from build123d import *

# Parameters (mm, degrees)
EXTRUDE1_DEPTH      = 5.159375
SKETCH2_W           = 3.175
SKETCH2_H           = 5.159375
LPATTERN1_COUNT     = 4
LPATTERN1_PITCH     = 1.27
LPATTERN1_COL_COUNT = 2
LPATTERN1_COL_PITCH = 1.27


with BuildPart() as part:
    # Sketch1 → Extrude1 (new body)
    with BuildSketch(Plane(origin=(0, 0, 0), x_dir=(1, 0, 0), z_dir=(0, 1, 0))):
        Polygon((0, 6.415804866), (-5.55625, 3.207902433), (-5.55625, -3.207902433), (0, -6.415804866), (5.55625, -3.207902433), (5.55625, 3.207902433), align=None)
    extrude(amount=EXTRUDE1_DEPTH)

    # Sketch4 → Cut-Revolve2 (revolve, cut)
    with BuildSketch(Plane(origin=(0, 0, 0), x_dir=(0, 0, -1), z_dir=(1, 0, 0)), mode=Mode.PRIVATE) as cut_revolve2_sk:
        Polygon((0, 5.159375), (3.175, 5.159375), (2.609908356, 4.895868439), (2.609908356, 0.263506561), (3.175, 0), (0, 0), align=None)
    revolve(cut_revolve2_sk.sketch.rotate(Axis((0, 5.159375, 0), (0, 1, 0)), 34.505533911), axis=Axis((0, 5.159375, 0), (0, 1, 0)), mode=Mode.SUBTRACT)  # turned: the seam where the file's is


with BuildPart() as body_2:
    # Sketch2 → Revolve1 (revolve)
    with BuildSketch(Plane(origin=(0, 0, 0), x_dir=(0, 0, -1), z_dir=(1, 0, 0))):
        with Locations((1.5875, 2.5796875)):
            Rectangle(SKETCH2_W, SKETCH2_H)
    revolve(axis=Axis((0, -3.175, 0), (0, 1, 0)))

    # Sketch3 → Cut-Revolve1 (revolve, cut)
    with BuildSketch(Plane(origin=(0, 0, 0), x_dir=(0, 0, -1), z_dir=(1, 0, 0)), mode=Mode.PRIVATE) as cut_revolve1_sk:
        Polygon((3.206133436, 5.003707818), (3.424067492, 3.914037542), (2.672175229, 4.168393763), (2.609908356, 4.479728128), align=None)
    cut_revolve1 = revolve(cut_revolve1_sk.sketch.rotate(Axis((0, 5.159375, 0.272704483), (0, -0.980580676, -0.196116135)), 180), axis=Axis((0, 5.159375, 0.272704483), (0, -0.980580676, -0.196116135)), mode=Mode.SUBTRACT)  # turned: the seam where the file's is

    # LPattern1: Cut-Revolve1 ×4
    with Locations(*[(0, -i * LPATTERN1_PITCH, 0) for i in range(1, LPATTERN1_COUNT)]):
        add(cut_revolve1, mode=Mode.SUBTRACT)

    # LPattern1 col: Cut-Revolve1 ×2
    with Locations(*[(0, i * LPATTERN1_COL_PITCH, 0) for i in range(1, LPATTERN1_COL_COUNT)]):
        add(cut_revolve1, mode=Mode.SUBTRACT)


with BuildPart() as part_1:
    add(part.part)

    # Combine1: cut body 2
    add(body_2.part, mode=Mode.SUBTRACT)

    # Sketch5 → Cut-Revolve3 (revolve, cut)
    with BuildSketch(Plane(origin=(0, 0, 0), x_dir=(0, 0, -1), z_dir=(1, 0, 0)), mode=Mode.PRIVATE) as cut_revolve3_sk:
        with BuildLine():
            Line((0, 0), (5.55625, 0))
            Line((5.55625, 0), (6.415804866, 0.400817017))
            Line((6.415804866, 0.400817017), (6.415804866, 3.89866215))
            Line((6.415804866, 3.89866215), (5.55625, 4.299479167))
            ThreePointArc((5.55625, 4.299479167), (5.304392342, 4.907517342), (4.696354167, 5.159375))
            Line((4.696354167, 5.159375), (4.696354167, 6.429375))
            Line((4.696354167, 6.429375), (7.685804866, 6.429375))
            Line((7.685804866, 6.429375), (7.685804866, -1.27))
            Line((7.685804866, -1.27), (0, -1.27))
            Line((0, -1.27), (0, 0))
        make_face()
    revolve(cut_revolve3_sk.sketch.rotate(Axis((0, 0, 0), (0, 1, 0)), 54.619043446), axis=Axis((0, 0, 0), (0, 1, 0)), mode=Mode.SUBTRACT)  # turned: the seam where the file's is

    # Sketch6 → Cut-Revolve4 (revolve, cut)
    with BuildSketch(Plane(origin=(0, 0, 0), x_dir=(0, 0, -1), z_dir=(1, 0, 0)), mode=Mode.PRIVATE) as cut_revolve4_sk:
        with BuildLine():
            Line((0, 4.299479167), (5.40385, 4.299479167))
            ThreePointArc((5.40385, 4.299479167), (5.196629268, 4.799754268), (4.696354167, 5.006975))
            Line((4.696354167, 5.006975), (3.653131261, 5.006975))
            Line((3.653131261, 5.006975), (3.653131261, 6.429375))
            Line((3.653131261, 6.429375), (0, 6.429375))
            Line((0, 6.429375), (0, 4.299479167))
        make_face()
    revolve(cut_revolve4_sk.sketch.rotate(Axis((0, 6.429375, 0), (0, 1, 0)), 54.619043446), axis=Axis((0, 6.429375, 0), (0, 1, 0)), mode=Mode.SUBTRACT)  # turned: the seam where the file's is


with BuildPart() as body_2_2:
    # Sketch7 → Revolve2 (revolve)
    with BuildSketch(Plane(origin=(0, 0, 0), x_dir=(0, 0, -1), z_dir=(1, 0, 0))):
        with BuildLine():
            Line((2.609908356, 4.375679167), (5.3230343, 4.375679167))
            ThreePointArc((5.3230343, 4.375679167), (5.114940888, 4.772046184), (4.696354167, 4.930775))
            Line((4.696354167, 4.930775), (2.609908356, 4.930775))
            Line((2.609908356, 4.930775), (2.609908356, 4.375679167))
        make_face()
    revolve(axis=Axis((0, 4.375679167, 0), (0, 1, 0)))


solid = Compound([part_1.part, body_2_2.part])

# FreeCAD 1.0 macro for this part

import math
import FreeCAD as App
import Part
import Sketcher
Q = App.Units.Quantity


def add_polygon(sketch, points):
    """Adds a closed chain of lines whose ends are joined by coincident constraints."""
    first, n = sketch.GeometryCount, len(points)
    for a, b in zip(points, points[1:] + points[:1]):
        sketch.addGeometry(Part.LineSegment(App.Vector(*a, 0), App.Vector(*b, 0)), False)
    for i in range(n):
        sketch.addConstraint(Sketcher.Constraint("Coincident", first + i, 2, first + (i + 1) % n, 1))

doc = App.newDocument("Part")
params = doc.addObject("Spreadsheet::Sheet", "Params")
for row, (alias, value) in enumerate([
    ("pad1_length", "0.203125 in"),
    ("sketch2_width", "0.203125 in"),
    ("sketch2_height", "0.125 in"),
    ("groove_angle", "360 deg"),
    ("sketch3_width", "0.203125 in"),
    ("sketch3_height", "0.125 in"),
    ("revolution_angle", "360 deg"),
    ("sketch4_length", "0.03125 in"),
    ("groove2_angle", "360 deg"),
    ("linearpattern_pitch", "0.05 in"),
    ("linearpattern2_pitch", "0.05 in"),
    ("sketch5_width", "0.05 in"),
    ("sketch5_height", "0.21875 in"),
    ("groove3_angle", "360 deg"),
    ("sketch6_width", "0.056 in"),
    ("groove4_angle", "360 deg"),
    ("revolution2_angle", "360 deg"),
], start=1):
    params.set(f"A{row}", alias)
    params.set(f"B{row}", "=" + value)
    params.setAlias(f"B{row}", alias)

body = doc.addObject("PartDesign::Body", "Body")

sketch1 = doc.addObject("Sketcher::SketchObject", "Sketch")
body.addObject(sketch1)
sketch1.AttachmentSupport = (doc.XZ_Plane, [""])
sketch1.MapMode = "FlatFace"
add_polygon(sketch1, [(0, -6), (-6, -3), (-6, 3), (0, 6), (6, 3), (6, -3)])
sketch1.addConstraint(Sketcher.Constraint("Vertical", 1))
sketch1.addConstraint(Sketcher.Constraint("Vertical", 4))
sketch1.addConstraint(Sketcher.Constraint("Symmetric", 0, 2, 3, 2, -1, 1))
sketch1.addConstraint(Sketcher.Constraint("Symmetric", 2, 2, 5, 2, -1, 1))
sketch1.addConstraint(Sketcher.Constraint("PointOnObject", 2, 2, -2))
sketch1.addConstraint(Sketcher.Constraint("Parallel", 2, 5))
sketch1.addConstraint(Sketcher.Constraint("Horizontal", 1, 2, 3, 2))
sketch1.addConstraint(Sketcher.Constraint("Angle", 0, Q("150 deg")))
sketch1.addConstraint(Sketcher.Constraint("DistanceX", 0, 2, -1, 1, Q("0.21875 in")))
sketch1.addConstraint(Sketcher.Constraint("DistanceY", 1, 1, 1, 2, Q("6.415805 mm")))
pad1 = doc.addObject("PartDesign::Pad", "Pad")
body.addObject(pad1)
pad1.Profile = sketch1
pad1.setExpression("Length", "Params.pad1_length")
pad1.Reversed = True

sketch2 = doc.addObject("Sketcher::SketchObject", "Sketch001")
body.addObject(sketch2)
sketch2.AttachmentSupport = (doc.YZ_Plane, [""])
sketch2.MapMode = "FlatFace"
add_polygon(sketch2, [(5.2, -3.2), (5.2, 0), (0, 0), (0, -3.2), (0.3, -2.6), (4.9, -2.6)])
sketch2.addConstraint(Sketcher.Constraint("Vertical", 0))
sketch2.addConstraint(Sketcher.Constraint("Horizontal", 1))
sketch2.addConstraint(Sketcher.Constraint("Vertical", 2))
sketch2.addConstraint(Sketcher.Constraint("Horizontal", 4))
sketch2.addConstraint(Sketcher.Constraint("Coincident", 1, 2, -1, 1))
sketch2.addConstraint(Sketcher.Constraint("Horizontal", 2, 2, 5, 2))
sketch2.addConstraint(Sketcher.Constraint("Equal", 3, 5))
sketch2.addConstraint(Sketcher.Constraint("Angle", 3, Q("65 deg")))
sketch2.addConstraint(Sketcher.Constraint("DistanceX", 1, 2, 1, 1, Q("0.203125 in")))
sketch2.addConstraint(Sketcher.Constraint("DistanceY", 0, 1, 0, 2, Q("0.125 in")))
sketch2.addConstraint(Sketcher.Constraint("DistanceX", 4, 1, 4, 2, Q("4.632362 mm")))
sketch2.setExpression("Constraints[14]", "Params.sketch2_width")
sketch2.setExpression("Constraints[15]", "Params.sketch2_height")
groove = doc.addObject("PartDesign::Groove", "Groove")
body.addObject(groove)
groove.Profile = sketch2
groove.ReferenceAxis = (sketch2, ["H_Axis"])
groove.setExpression("Angle", "Params.groove_angle")
body2 = doc.addObject("PartDesign::Body", "Body001")

sketch3 = doc.addObject("Sketcher::SketchObject", "Sketch002")
body2.addObject(sketch3)
sketch3.AttachmentSupport = (doc.getObject("YZ_Plane001"), [""])
sketch3.MapMode = "FlatFace"
add_polygon(sketch3, [(5.2, 0), (0, 0), (0, -3.2), (5.2, -3.2)])
sketch3.addConstraint(Sketcher.Constraint("Horizontal", 0))
sketch3.addConstraint(Sketcher.Constraint("Vertical", 1))
sketch3.addConstraint(Sketcher.Constraint("Horizontal", 2))
sketch3.addConstraint(Sketcher.Constraint("Vertical", 3))
sketch3.addConstraint(Sketcher.Constraint("Coincident", 0, 2, -1, 1))
sketch3.addConstraint(Sketcher.Constraint("DistanceX", 0, 2, 0, 1, Q("0.203125 in")))
sketch3.addConstraint(Sketcher.Constraint("DistanceY", 1, 2, 1, 1, Q("0.125 in")))
sketch3.setExpression("Constraints[9]", "Params.sketch3_width")
sketch3.setExpression("Constraints[10]", "Params.sketch3_height")
revolution = doc.addObject("PartDesign::Revolution", "Revolution")
body2.addObject(revolution)
revolution.Profile = sketch3
revolution.ReferenceAxis = (sketch3, ["H_Axis"])
revolution.setExpression("Angle", "Params.revolution_angle")

sketch4 = doc.addObject("Sketcher::SketchObject", "Sketch003")
body2.addObject(sketch4)
sketch4.AttachmentSupport = (doc.getObject("YZ_Plane001"), [""])
sketch4.MapMode = "FlatFace"
add_polygon(sketch4, [(3.91, -3.42), (5, -3.21), (4.48, -2.61), (4.17, -2.67)])
sketch4.addGeometry(Part.LineSegment(App.Vector(4.34, 0.11, 0), App.Vector(3.25, -0.11, 0)), True)
sketch4.addConstraint(Sketcher.Constraint("Parallel", 0, 2))
sketch4.addConstraint(Sketcher.Constraint("Parallel", 2, 4))
sketch4.addConstraint(Sketcher.Constraint("Equal", 1, 3))
sketch4.addConstraint(Sketcher.Constraint("Equal", 0, 4))
sketch4.addConstraint(Sketcher.Constraint("Distance", 1, Q("0.03125 in")))
sketch4.addConstraint(Sketcher.Constraint("Distance", 2, Q("0.0125 in")))
sketch4.addConstraint(Sketcher.Constraint("DistanceY", 0, 2, 4, 1, Q("3.3151 mm")))
sketch4.addConstraint(Sketcher.Constraint("Distance", 0, Q("1.11125 mm")))
sketch4.addConstraint(Sketcher.Constraint("DistanceX", -1, 1, 1, 2, Q("4.479728 mm")))
sketch4.addConstraint(Sketcher.Constraint("DistanceY", 1, 2, -1, 1, Q("2.609908 mm")))
sketch4.addConstraint(Sketcher.Constraint("DistanceX", 1, 2, 0, 2, Q("0.52398 mm")))
sketch4.addConstraint(Sketcher.Constraint("DistanceX", 4, 1, 1, 2, Q("0.13904 mm")))
sketch4.setExpression("Constraints[8]", "Params.sketch4_length")
groove2 = doc.addObject("PartDesign::Groove", "Groove001")
body2.addObject(groove2)
groove2.Profile = sketch4
groove2.ReferenceAxis = (sketch4, ["Axis0"])
groove2.setExpression("Angle", "Params.groove2_angle")
doc.recompute()

linearpattern = doc.addObject("PartDesign::LinearPattern", "LinearPattern")
body2.addObject(linearpattern)
linearpattern.Originals = [groove2]
linearpattern.Direction = (doc.getObject("Y_Axis001"), [""])
linearpattern.Mode = "offset"
linearpattern.setExpression("Offset", "Params.linearpattern_pitch")
linearpattern.Occurrences = 4
linearpattern.Reversed = True
body2.Tip = linearpattern
doc.recompute()

linearpattern2 = doc.addObject("PartDesign::LinearPattern", "LinearPattern001")
body2.addObject(linearpattern2)
linearpattern2.Originals = [groove2]
linearpattern2.Direction = (doc.getObject("Y_Axis001"), [""])
linearpattern2.Mode = "offset"
linearpattern2.setExpression("Offset", "Params.linearpattern2_pitch")
linearpattern2.Occurrences = 2
body2.Tip = linearpattern2
doc.recompute()

boolean = doc.addObject("PartDesign::Boolean", "Boolean")
body.addObject(boolean)
boolean.Type = "Cut"
boolean.addObjects([body2])

sketch5 = doc.addObject("Sketcher::SketchObject", "Sketch004")
body.addObject(sketch5)
sketch5.AttachmentSupport = (doc.YZ_Plane, [""])
sketch5.MapMode = "FlatFace"
sketch5.addGeometry(Part.LineSegment(App.Vector(0, -5.6, 0), App.Vector(0, 0, 0)), False)
sketch5.addGeometry(Part.LineSegment(App.Vector(0, 0, 0), App.Vector(-1.3, 0, 0)), False)
sketch5.addGeometry(Part.LineSegment(App.Vector(-1.3, 0, 0), App.Vector(-1.3, -7.7, 0)), False)
sketch5.addGeometry(Part.LineSegment(App.Vector(-1.3, -7.7, 0), App.Vector(6.4, -7.7, 0)), False)
sketch5.addGeometry(Part.LineSegment(App.Vector(6.4, -7.7, 0), App.Vector(6.4, -4.7, 0)), False)
sketch5.addGeometry(Part.LineSegment(App.Vector(6.4, -4.7, 0), App.Vector(5.2, -4.7, 0)), False)
sketch5.addGeometry(Part.ArcOfCircle(Part.Circle(App.Vector(4.3, -4.7, 0), App.Vector(0, 0, 1), 0.9), math.radians(-90), math.radians(0)), False)
sketch5.addGeometry(Part.LineSegment(App.Vector(4.3, -5.6, 0), App.Vector(3.9, -6.4, 0)), False)
sketch5.addGeometry(Part.LineSegment(App.Vector(3.9, -6.4, 0), App.Vector(0.4, -6.4, 0)), False)
sketch5.addGeometry(Part.LineSegment(App.Vector(0.4, -6.4, 0), App.Vector(0, -5.6, 0)), False)
sketch5.addConstraint(Sketcher.Constraint("Coincident", 0, 2, 1, 1))
sketch5.addConstraint(Sketcher.Constraint("Coincident", 1, 2, 2, 1))
sketch5.addConstraint(Sketcher.Constraint("Coincident", 2, 2, 3, 1))
sketch5.addConstraint(Sketcher.Constraint("Coincident", 3, 2, 4, 1))
sketch5.addConstraint(Sketcher.Constraint("Coincident", 4, 2, 5, 1))
sketch5.addConstraint(Sketcher.Constraint("Coincident", 5, 2, 6, 2))
sketch5.addConstraint(Sketcher.Constraint("Coincident", 6, 1, 7, 1))
sketch5.addConstraint(Sketcher.Constraint("Coincident", 7, 2, 8, 1))
sketch5.addConstraint(Sketcher.Constraint("Coincident", 8, 2, 9, 1))
sketch5.addConstraint(Sketcher.Constraint("Coincident", 9, 2, 0, 1))
sketch5.addConstraint(Sketcher.Constraint("Vertical", 0))
sketch5.addConstraint(Sketcher.Constraint("Horizontal", 1))
sketch5.addConstraint(Sketcher.Constraint("Vertical", 2))
sketch5.addConstraint(Sketcher.Constraint("Horizontal", 3))
sketch5.addConstraint(Sketcher.Constraint("Vertical", 4))
sketch5.addConstraint(Sketcher.Constraint("Horizontal", 5))
sketch5.addConstraint(Sketcher.Constraint("Horizontal", 8))
sketch5.addConstraint(Sketcher.Constraint("Coincident", 0, 2, -1, 1))
sketch5.addConstraint(Sketcher.Constraint("Horizontal", 6, 3, 4, 2))
sketch5.addConstraint(Sketcher.Constraint("Horizontal", 6, 1, 9, 2))
sketch5.addConstraint(Sketcher.Constraint("Equal", 1, 5))
sketch5.addConstraint(Sketcher.Constraint("Equal", 7, 9))
sketch5.addConstraint(Sketcher.Constraint("Angle", 7, Q("-115 deg")))
sketch5.addConstraint(Sketcher.Constraint("DistanceX", 1, 2, 1, 1, Q("0.05 in")))
sketch5.addConstraint(Sketcher.Constraint("DistanceY", 0, 1, 0, 2, Q("0.21875 in")))
sketch5.addConstraint(Sketcher.Constraint("DistanceY", 3, 2, 7, 2, Q("0.05 in")))
sketch5.addConstraint(Sketcher.Constraint("DistanceX", -1, 1, 5, 2, Q("0.203125 in")))
sketch5.addConstraint(Sketcher.Constraint("Radius", 6, Q("0.859896 mm")))
sketch5.addConstraint(Sketcher.Constraint("DistanceY", 4, 1, 4, 2, Q("2.989451 mm")))
sketch5.addConstraint(Sketcher.Constraint("DistanceX", 8, 2, 8, 1, Q("3.497845 mm")))
sketch5.setExpression("Constraints[23]", "Params.sketch5_width")
sketch5.setExpression("Constraints[24]", "Params.sketch5_height")
groove3 = doc.addObject("PartDesign::Groove", "Groove002")
body.addObject(groove3)
groove3.Profile = sketch5
groove3.ReferenceAxis = (sketch5, ["H_Axis"])
groove3.setExpression("Angle", "Params.groove3_angle")

sketch6 = doc.addObject("Sketcher::SketchObject", "Sketch005")
body.addObject(sketch6)
sketch6.AttachmentSupport = (doc.YZ_Plane, [""])
sketch6.MapMode = "FlatFace"
sketch6.addGeometry(Part.LineSegment(App.Vector(4.3, 0, 0), App.Vector(4.3, -5.4, 0)), False)
sketch6.addGeometry(Part.ArcOfCircle(Part.Circle(App.Vector(4.3, -4.7, 0), App.Vector(0, 0, 1), 0.7), math.radians(-90), math.radians(0)), False)
sketch6.addGeometry(Part.LineSegment(App.Vector(5, -4.7, 0), App.Vector(5, -3.7, 0)), False)
sketch6.addGeometry(Part.LineSegment(App.Vector(5, -3.7, 0), App.Vector(6.4, -3.7, 0)), False)
sketch6.addGeometry(Part.LineSegment(App.Vector(6.4, -3.7, 0), App.Vector(6.4, 0, 0)), False)
sketch6.addGeometry(Part.LineSegment(App.Vector(6.4, 0, 0), App.Vector(4.3, 0, 0)), False)
sketch6.addConstraint(Sketcher.Constraint("Coincident", 0, 2, 1, 1))
sketch6.addConstraint(Sketcher.Constraint("Tangent", 1, 2, 2, 1))
sketch6.addConstraint(Sketcher.Constraint("Coincident", 2, 2, 3, 1))
sketch6.addConstraint(Sketcher.Constraint("Coincident", 3, 2, 4, 1))
sketch6.addConstraint(Sketcher.Constraint("Coincident", 4, 2, 5, 1))
sketch6.addConstraint(Sketcher.Constraint("Coincident", 5, 2, 0, 1))
sketch6.addConstraint(Sketcher.Constraint("Vertical", 0))
sketch6.addConstraint(Sketcher.Constraint("Vertical", 2))
sketch6.addConstraint(Sketcher.Constraint("Horizontal", 3))
sketch6.addConstraint(Sketcher.Constraint("Vertical", 4))
sketch6.addConstraint(Sketcher.Constraint("Horizontal", 5))
sketch6.addConstraint(Sketcher.Constraint("PointOnObject", 4, 2, -1))
sketch6.addConstraint(Sketcher.Constraint("Vertical", 1, 3, 0, 2))
sketch6.addConstraint(Sketcher.Constraint("DistanceX", 3, 1, 3, 2, Q("0.056 in")))
sketch6.addConstraint(Sketcher.Constraint("Radius", 1, Q("0.707496 mm")))
sketch6.addConstraint(Sketcher.Constraint("DistanceY", 0, 2, 0, 1, Q("5.40385 mm")))
sketch6.addConstraint(Sketcher.Constraint("DistanceY", 4, 1, 4, 2, Q("3.653131 mm")))
sketch6.addConstraint(Sketcher.Constraint("DistanceX", -1, 1, 1, 3, Q("4.299479 mm")))
sketch6.setExpression("Constraints[13]", "Params.sketch6_width")
groove4 = doc.addObject("PartDesign::Groove", "Groove003")
body.addObject(groove4)
groove4.Profile = sketch6
groove4.ReferenceAxis = (sketch6, ["H_Axis"])
groove4.setExpression("Angle", "Params.groove4_angle")
body3 = doc.addObject("PartDesign::Body", "Body002")

sketch7 = doc.addObject("Sketcher::SketchObject", "Sketch006")
body3.addObject(sketch7)
sketch7.AttachmentSupport = (doc.getObject("YZ_Plane002"), [""])
sketch7.MapMode = "FlatFace"
sketch7.addGeometry(Part.LineSegment(App.Vector(4.4, -2.6, 0), App.Vector(4.4, -5.3, 0)), False)
sketch7.addGeometry(Part.ArcOfCircle(Part.Circle(App.Vector(4.3, -4.7, 0), App.Vector(0, 0, 1), 0.6), math.radians(-83), math.radians(0)), False)
sketch7.addGeometry(Part.LineSegment(App.Vector(4.9, -4.7, 0), App.Vector(4.9, -2.6, 0)), False)
sketch7.addGeometry(Part.LineSegment(App.Vector(4.9, -2.6, 0), App.Vector(4.4, -2.6, 0)), False)
sketch7.addConstraint(Sketcher.Constraint("Coincident", 0, 2, 1, 1))
sketch7.addConstraint(Sketcher.Constraint("Tangent", 1, 2, 2, 1))
sketch7.addConstraint(Sketcher.Constraint("Coincident", 2, 2, 3, 1))
sketch7.addConstraint(Sketcher.Constraint("Coincident", 3, 2, 0, 1))
sketch7.addConstraint(Sketcher.Constraint("Vertical", 0))
sketch7.addConstraint(Sketcher.Constraint("Vertical", 2))
sketch7.addConstraint(Sketcher.Constraint("Horizontal", 3))
sketch7.addConstraint(Sketcher.Constraint("DistanceX", 1, 3, 0, 2, Q("0.003 in")))
sketch7.addConstraint(Sketcher.Constraint("Radius", 1, Q("0.631296 mm")))
sketch7.addConstraint(Sketcher.Constraint("DistanceY", 0, 2, 0, 1, Q("2.713126 mm")))
sketch7.addConstraint(Sketcher.Constraint("DistanceX", -1, 1, 1, 3, Q("4.299479 mm")))
sketch7.addConstraint(Sketcher.Constraint("DistanceY", 2, 2, -1, 1, Q("2.609908 mm")))
revolution2 = doc.addObject("PartDesign::Revolution", "Revolution001")
body3.addObject(revolution2)
revolution2.Profile = sketch7
revolution2.ReferenceAxis = (sketch7, ["H_Axis"])
revolution2.setExpression("Angle", "Params.revolution2_angle")

doc.recompute()
